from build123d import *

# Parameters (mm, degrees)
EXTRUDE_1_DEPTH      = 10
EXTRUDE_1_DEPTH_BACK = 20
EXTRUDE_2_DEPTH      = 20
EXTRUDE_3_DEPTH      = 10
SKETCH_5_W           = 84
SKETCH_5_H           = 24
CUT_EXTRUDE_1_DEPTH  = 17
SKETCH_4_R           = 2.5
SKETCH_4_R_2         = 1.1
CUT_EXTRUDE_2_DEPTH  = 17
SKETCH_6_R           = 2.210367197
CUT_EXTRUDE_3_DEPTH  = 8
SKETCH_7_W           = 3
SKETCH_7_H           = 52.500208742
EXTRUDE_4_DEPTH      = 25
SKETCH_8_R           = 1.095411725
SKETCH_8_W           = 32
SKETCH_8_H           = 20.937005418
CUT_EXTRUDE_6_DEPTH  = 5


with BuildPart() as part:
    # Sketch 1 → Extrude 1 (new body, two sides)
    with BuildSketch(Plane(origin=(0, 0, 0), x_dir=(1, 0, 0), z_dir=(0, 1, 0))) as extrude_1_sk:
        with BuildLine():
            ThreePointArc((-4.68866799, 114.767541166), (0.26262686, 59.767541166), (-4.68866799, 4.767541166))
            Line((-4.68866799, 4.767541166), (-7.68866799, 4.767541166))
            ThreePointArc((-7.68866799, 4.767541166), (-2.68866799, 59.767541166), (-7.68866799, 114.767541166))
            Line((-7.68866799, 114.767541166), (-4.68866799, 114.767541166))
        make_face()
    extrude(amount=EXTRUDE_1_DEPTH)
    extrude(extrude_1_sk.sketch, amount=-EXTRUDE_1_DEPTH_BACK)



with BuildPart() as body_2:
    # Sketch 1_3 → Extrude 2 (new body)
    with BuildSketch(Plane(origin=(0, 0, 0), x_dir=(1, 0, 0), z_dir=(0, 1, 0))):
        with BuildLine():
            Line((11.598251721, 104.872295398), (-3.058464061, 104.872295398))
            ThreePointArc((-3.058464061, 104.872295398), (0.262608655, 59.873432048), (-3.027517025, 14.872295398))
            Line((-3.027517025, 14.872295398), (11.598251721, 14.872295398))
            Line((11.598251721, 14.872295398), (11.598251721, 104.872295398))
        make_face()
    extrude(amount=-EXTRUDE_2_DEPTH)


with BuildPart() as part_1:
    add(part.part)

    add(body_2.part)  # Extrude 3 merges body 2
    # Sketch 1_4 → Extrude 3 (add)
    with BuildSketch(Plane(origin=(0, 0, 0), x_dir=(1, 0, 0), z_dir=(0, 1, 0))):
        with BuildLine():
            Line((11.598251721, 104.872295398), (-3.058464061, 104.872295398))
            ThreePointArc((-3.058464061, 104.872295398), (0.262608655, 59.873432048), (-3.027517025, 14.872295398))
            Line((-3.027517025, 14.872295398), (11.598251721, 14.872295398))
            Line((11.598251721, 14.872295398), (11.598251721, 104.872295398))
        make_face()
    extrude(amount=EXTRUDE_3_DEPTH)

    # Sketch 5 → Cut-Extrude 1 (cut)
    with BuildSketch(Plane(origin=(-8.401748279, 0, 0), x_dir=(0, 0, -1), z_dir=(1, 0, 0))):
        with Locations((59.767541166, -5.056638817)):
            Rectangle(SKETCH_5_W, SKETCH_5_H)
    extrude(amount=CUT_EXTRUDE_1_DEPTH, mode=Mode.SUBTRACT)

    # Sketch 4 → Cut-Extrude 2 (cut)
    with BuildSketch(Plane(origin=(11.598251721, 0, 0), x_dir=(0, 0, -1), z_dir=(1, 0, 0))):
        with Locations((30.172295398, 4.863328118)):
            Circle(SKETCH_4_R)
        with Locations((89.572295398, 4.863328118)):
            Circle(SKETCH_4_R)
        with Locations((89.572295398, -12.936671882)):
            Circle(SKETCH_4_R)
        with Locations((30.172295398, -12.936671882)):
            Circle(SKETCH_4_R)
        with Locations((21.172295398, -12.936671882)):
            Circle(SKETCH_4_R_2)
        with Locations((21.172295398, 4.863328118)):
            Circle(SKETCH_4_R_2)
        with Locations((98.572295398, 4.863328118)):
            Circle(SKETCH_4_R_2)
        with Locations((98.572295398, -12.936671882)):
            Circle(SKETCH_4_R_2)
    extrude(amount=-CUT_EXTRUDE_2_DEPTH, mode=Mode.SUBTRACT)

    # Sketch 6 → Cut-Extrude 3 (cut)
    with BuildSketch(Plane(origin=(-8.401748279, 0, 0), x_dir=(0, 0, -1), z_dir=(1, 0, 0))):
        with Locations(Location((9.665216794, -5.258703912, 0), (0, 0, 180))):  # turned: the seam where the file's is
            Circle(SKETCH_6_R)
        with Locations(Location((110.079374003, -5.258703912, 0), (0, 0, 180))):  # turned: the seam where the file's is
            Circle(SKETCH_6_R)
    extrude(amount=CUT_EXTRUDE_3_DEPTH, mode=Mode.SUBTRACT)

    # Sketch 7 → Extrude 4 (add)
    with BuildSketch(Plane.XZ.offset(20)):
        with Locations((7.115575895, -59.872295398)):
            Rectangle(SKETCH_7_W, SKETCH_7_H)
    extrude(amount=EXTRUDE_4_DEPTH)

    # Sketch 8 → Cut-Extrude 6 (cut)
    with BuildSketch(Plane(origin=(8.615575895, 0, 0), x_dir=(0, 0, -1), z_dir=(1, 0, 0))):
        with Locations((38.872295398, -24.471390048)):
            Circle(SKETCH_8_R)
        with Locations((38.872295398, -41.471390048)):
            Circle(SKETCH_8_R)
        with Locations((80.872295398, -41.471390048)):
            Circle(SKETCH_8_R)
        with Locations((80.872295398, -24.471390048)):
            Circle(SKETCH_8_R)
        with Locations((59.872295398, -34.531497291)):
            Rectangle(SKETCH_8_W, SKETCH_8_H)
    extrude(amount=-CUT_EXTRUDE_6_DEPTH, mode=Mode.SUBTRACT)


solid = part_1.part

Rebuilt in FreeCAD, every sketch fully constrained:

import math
import FreeCAD as App
import Part
import Sketcher
from FreeCAD import Vector


def add_polygon(sketch, points):
    """Adds a closed chain of lines whose ends are joined by coincident constraints."""
    first, n = sketch.GeometryCount, len(points)
    for a, b in zip(points, points[1:] + points[:1]):
        sketch.addGeometry(Part.LineSegment(App.Vector(*a, 0), App.Vector(*b, 0)), False)
    for i in range(n):
        sketch.addConstraint(Sketcher.Constraint("Coincident", first + i, 2, first + (i + 1) % n, 1))

doc = App.newDocument("Part")
params = doc.addObject("Spreadsheet::Sheet", "Params")
for row, (alias, value) in enumerate([
    ("sketch1_radius", "305 mm"),
    ("sketch1_width", "3 mm"),
    ("pad1_length", "10 mm"),
    ("pad1_length2", "20 mm"),
    ("sketch2_height", "90 mm"),
    ("pad2_length", "20 mm"),
    ("sketch3_height", "90 mm"),
    ("pad3_length", "10 mm"),
    ("sketch4_width", "24 mm"),
    ("sketch4_height", "84 mm"),
    ("pocket1_length", "17 mm"),
    ("sketch5_diameter", "5 mm"),
    ("sketch5_diameter2", "2.2 mm"),
    ("pocket2_length", "17 mm"),
    ("pocket3_length", "8 mm"),
    ("sketch7_width", "3 mm"),
    ("pad4_length", "25 mm"),
    ("sketch8_height", "32 mm"),
    ("pocket4_length", "5 mm"),
], start=1):
    params.set(f"A{row}", alias)
    params.set(f"B{row}", "=" + value)
    params.setAlias(f"B{row}", alias)

body = doc.addObject("PartDesign::Body", "Body")

# Sketch on XZ plane
sketch1 = body.newObject("Sketcher::SketchObject", "Sketch")
sketch1.AttachmentSupport = (doc.getObject("XZ_Plane"), [""])
sketch1.MapMode = "FlatFace"
sketch1.addGeometry([
    Part.ArcOfCircle(Part.Circle(Vector(-307.7, -59.8, 0), Vector(0, 0, 1), 308), math.radians(-10), math.radians(10)),
    Part.LineSegment(Vector(-4.7, -114.8, 0), Vector(-7.7, -114.8, 0)),
    Part.ArcOfCircle(Part.Circle(Vector(-307.7, -59.8, 0), Vector(0, 0, 1), 305), math.radians(-10), math.radians(10)),
    Part.LineSegment(Vector(-7.7, -4.8, 0), Vector(-4.7, -4.8, 0)),
], False)
sketch1.addConstraint([
    Sketcher.Constraint("Coincident", 0, 1, 1, 1),
    Sketcher.Constraint("Coincident", 1, 2, 2, 1),
    Sketcher.Constraint("Coincident", 2, 2, 3, 1),
    Sketcher.Constraint("Coincident", 3, 2, 0, 2),
    Sketcher.Constraint("Horizontal", 1),
    Sketcher.Constraint("Horizontal", 3),
    Sketcher.Constraint("Coincident", 2, 3, 0, 3),
    Sketcher.Constraint("Vertical", 1, 2, 2, 2),
    Sketcher.Constraint("Radius", 2, 305.0),
    Sketcher.Constraint("DistanceX", 1, 2, 1, 1, 3.0),
    Sketcher.Constraint("DistanceX", 2, 3, 1, 2, 300.0),
    Sketcher.Constraint("DistanceX", 0, 3, -1, 1, 307.688668),
    Sketcher.Constraint("DistanceY", 0, 3, -1, 1, 59.767541),
])
sketch1.setExpression("Constraints[8]", "Params.sketch1_radius")
sketch1.setExpression("Constraints[9]", "Params.sketch1_width")
pad1 = body.newObject("PartDesign::Pad", "Pad")
pad1.Profile = sketch1
pad1.Type = "TwoLengths"
pad1.setExpression("Length", "Params.pad1_length")
pad1.setExpression("Length2", "Params.pad1_length2")
pad1.Reversed = True
body2 = doc.addObject("PartDesign::Body", "Body001")

# Sketch on XZ plane
sketch2 = body2.newObject("Sketcher::SketchObject", "Sketch001")
sketch2.AttachmentSupport = (doc.getObject("XZ_Plane001"), [""])
sketch2.MapMode = "FlatFace"
sketch2.addGeometry([
    Part.LineSegment(Vector(12, -105, 0), Vector(-3, -105, 0)),
    Part.ArcOfCircle(Part.Circle(Vector(-308, -60, 0), Vector(0, 0, 1), 308), math.radians(-8.42), math.radians(8.38)),
    Part.LineSegment(Vector(-3, -15, 0), Vector(12, -15, 0)),
    Part.LineSegment(Vector(12, -15, 0), Vector(12, -105, 0)),
], False)
sketch2.addConstraint([
    Sketcher.Constraint("Coincident", 0, 2, 1, 1),
    Sketcher.Constraint("Coincident", 1, 2, 2, 1),
    Sketcher.Constraint("Coincident", 2, 2, 3, 1),
    Sketcher.Constraint("Coincident", 3, 2, 0, 1),
    Sketcher.Constraint("Horizontal", 0),
    Sketcher.Constraint("Horizontal", 2),
    Sketcher.Constraint("Vertical", 3),
    Sketcher.Constraint("DistanceY", 3, 2, 3, 1, 90.0),
    Sketcher.Constraint("Radius", 1, 307.951295),
    Sketcher.Constraint("DistanceX", 2, 1, 2, 2, 14.625769),
    Sketcher.Constraint("DistanceX", 0, 2, 0, 1, 14.656716),
    Sketcher.Constraint("DistanceY", 1, 3, -1, 1, 59.767541),
    Sketcher.Constraint("DistanceX", -1, 1, 2, 2, 11.598252),
])
sketch2.setExpression("Constraints[7]", "Params.sketch2_height")
pad2 = body2.newObject("PartDesign::Pad", "Pad001")
pad2.Profile = sketch2
pad2.setExpression("Length", "Params.pad2_length")
doc.recompute()

boolean = body.newObject("PartDesign::Boolean", "Boolean")
boolean.Type = "Fuse"
boolean.addObjects([body2])

# Sketch on XZ plane
sketch3 = body.newObject("Sketcher::SketchObject", "Sketch002")
sketch3.AttachmentSupport = (doc.getObject("XZ_Plane"), [""])
sketch3.MapMode = "FlatFace"
sketch3.addGeometry([
    Part.LineSegment(Vector(12, -105, 0), Vector(-3, -105, 0)),
    Part.ArcOfCircle(Part.Circle(Vector(-308, -60, 0), Vector(0, 0, 1), 308), math.radians(-8.42), math.radians(8.38)),
    Part.LineSegment(Vector(-3, -15, 0), Vector(12, -15, 0)),
    Part.LineSegment(Vector(12, -15, 0), Vector(12, -105, 0)),
], False)
sketch3.addConstraint([
    Sketcher.Constraint("Coincident", 0, 2, 1, 1),
    Sketcher.Constraint("Coincident", 1, 2, 2, 1),
    Sketcher.Constraint("Coincident", 2, 2, 3, 1),
    Sketcher.Constraint("Coincident", 3, 2, 0, 1),
    Sketcher.Constraint("Horizontal", 0),
    Sketcher.Constraint("Horizontal", 2),
    Sketcher.Constraint("Vertical", 3),
    Sketcher.Constraint("DistanceY", 3, 2, 3, 1, 90.0),
    Sketcher.Constraint("Radius", 1, 307.951295),
    Sketcher.Constraint("DistanceX", 2, 1, 2, 2, 14.625769),
    Sketcher.Constraint("DistanceX", 0, 2, 0, 1, 14.656716),
    Sketcher.Constraint("DistanceY", 1, 3, -1, 1, 59.767541),
    Sketcher.Constraint("DistanceX", -1, 1, 2, 2, 11.598252),
])
sketch3.setExpression("Constraints[7]", "Params.sketch3_height")
pad3 = body.newObject("PartDesign::Pad", "Pad002")
pad3.Profile = sketch3
pad3.setExpression("Length", "Params.pad3_length")
pad3.Reversed = True

# Sketch on YZ plane
sketch4 = body.newObject("Sketcher::SketchObject", "Sketch003")
sketch4.AttachmentSupport = (doc.getObject("YZ_Plane"), [""])
sketch4.MapMode = "FlatFace"
sketch4.AttachmentOffset = App.Placement(Vector(0, 0, -8.401748), App.Rotation())
add_polygon(sketch4, [(7, -18), (-17, -18), (-17, -102), (7, -102)])  # lines 0-3
sketch4.addConstraint([
    Sketcher.Constraint("Horizontal", 0),
    Sketcher.Constraint("Vertical", 1),
    Sketcher.Constraint("Horizontal", 2),
    Sketcher.Constraint("Vertical", 3),
    Sketcher.Constraint("DistanceX", 0, 2, 0, 1, 24.0),
    Sketcher.Constraint("DistanceY", 1, 2, 1, 1, 84.0),
    Sketcher.Constraint("DistanceX", 0, 2, -1, 1, 17.056639),
    Sketcher.Constraint("DistanceY", 0, 2, -1, 1, 17.767541),
])
sketch4.setExpression("Constraints[8]", "Params.sketch4_width")
sketch4.setExpression("Constraints[9]", "Params.sketch4_height")
pocket1 = body.newObject("PartDesign::Pocket", "Pocket")
pocket1.Profile = sketch4
pocket1.setExpression("Length", "Params.pocket1_length")
pocket1.Reversed = True

# Sketch on YZ plane
sketch5 = body.newObject("Sketcher::SketchObject", "Sketch004")
sketch5.AttachmentSupport = (doc.getObject("YZ_Plane"), [""])
sketch5.MapMode = "FlatFace"
sketch5.AttachmentOffset = App.Placement(Vector(0, 0, 11.598252), App.Rotation())
sketch5.addGeometry([
    Part.Circle(Vector(4.9, -30.2, 0), Vector(0, 0, 1), 2.5),  # 0
    Part.Circle(Vector(4.9, -89.6, 0), Vector(0, 0, 1), 2.5),  # 1
    Part.Circle(Vector(-12.9, -89.6, 0), Vector(0, 0, 1), 2.5),  # 2
    Part.Circle(Vector(-12.9, -30.2, 0), Vector(0, 0, 1), 2.5),  # 3
    Part.Circle(Vector(-12.9, -21.2, 0), Vector(0, 0, 1), 1.1),  # 4
    Part.Circle(Vector(4.9, -21.2, 0), Vector(0, 0, 1), 1.1),  # 5
    Part.Circle(Vector(4.9, -98.6, 0), Vector(0, 0, 1), 1.1),  # 6
    Part.Circle(Vector(-12.9, -98.6, 0), Vector(0, 0, 1), 1.1),  # 7
], False)
sketch5.addConstraint([
    Sketcher.Constraint("Equal", 0, 1),
    Sketcher.Constraint("Equal", 1, 2),
    Sketcher.Constraint("Equal", 2, 3),
    Sketcher.Constraint("Equal", 4, 5),
    Sketcher.Constraint("Equal", 5, 6),
    Sketcher.Constraint("Equal", 6, 7),
    Sketcher.Constraint("Horizontal", 1, 3, 2, 3),
    Sketcher.Constraint("Horizontal", 0, 3, 3, 3),
    Sketcher.Constraint("Horizontal", 4, 3, 5, 3),
    Sketcher.Constraint("Horizontal", 6, 3, 7, 3),
    Sketcher.Constraint("Vertical", 0, 3, 1, 3),
    Sketcher.Constraint("Vertical", 2, 3, 3, 3),
    Sketcher.Constraint("Vertical", 3, 3, 4, 3),
    Sketcher.Constraint("Vertical", 1, 3, 5, 3),
    Sketcher.Constraint("Vertical", 5, 3, 6, 3),
    Sketcher.Constraint("Vertical", 4, 3, 7, 3),
    Sketcher.Constraint("Diameter", 0, 5.0),
    Sketcher.Constraint("Diameter", 4, 2.2),
    Sketcher.Constraint("DistanceY", 3, 3, 4, 3, 9.0),
    Sketcher.Constraint("DistanceY", 6, 3, 1, 3, 9.0),
    Sketcher.Constraint("DistanceY", 1, 3, 0, 3, 59.4),
    Sketcher.Constraint("DistanceX", 2, 3, 1, 3, 17.8),
    Sketcher.Constraint("DistanceX", -1, 1, 0, 3, 4.863328),
    Sketcher.Constraint("DistanceY", 0, 3, -1, 1, 30.172295),
])
sketch5.setExpression("Constraints[16]", "Params.sketch5_diameter")
sketch5.setExpression("Constraints[17]", "Params.sketch5_diameter2")
pocket2 = body.newObject("PartDesign::Pocket", "Pocket001")
pocket2.Profile = sketch5
pocket2.setExpression("Length", "Params.pocket2_length")

# Sketch on YZ plane
sketch6 = body.newObject("Sketcher::SketchObject", "Sketch005")
sketch6.AttachmentSupport = (doc.getObject("YZ_Plane"), [""])
sketch6.MapMode = "FlatFace"
sketch6.AttachmentOffset = App.Placement(Vector(0, 0, -8.401748), App.Rotation())
sketch6.addGeometry([
    Part.Circle(Vector(-5.3, -9.7, 0), Vector(0, 0, 1), 2.2),
    Part.Circle(Vector(-5.3, -110.1, 0), Vector(0, 0, 1), 2.2),
], False)
sketch6.addConstraint([
    Sketcher.Constraint("Equal", 0, 1),
    Sketcher.Constraint("Vertical", 0, 3, 1, 3),
    Sketcher.Constraint("Diameter", 0, 4.420734),
    Sketcher.Constraint("DistanceX", 0, 3, -1, 1, 5.258704),
    Sketcher.Constraint("DistanceY", 0, 3, -1, 1, 9.665217),
    Sketcher.Constraint("DistanceY", 1, 3, -1, 1, 110.079374),
])
pocket3 = body.newObject("PartDesign::Pocket", "Pocket002")
pocket3.Profile = sketch6
pocket3.setExpression("Length", "Params.pocket3_length")
pocket3.Reversed = True

# Sketch on XZ plane
sketch7 = body.newObject("Sketcher::SketchObject", "Sketch006")
sketch7.AttachmentSupport = (doc.getObject("XZ_Plane"), [""])
sketch7.MapMode = "FlatFace"
sketch7.AttachmentOffset = App.Placement(Vector(0, 0, 20), App.Rotation())
add_polygon(sketch7, [(5.6, -33.6), (5.6, -86.1), (8.6, -86.1), (8.6, -33.6)])  # lines 0-3
sketch7.addConstraint([
    Sketcher.Constraint("Vertical", 0),
    Sketcher.Constraint("Horizontal", 1),
    Sketcher.Constraint("Vertical", 2),
    Sketcher.Constraint("Horizontal", 3),
    Sketcher.Constraint("DistanceX", 1, 1, 1, 2, 3.0),
    Sketcher.Constraint("DistanceY", 0, 2, 0, 1, 52.500209),
    Sketcher.Constraint("DistanceY", 0, 2, -1, 1, 86.1224),
    Sketcher.Constraint("DistanceX", -1, 1, 0, 2, 5.615576),
])
sketch7.setExpression("Constraints[8]", "Params.sketch7_width")
pad4 = body.newObject("PartDesign::Pad", "Pad003")
pad4.Profile = sketch7
pad4.setExpression("Length", "Params.pad4_length")

# Sketch on YZ plane
sketch8 = body.newObject("Sketcher::SketchObject", "Sketch007")
sketch8.AttachmentSupport = (doc.getObject("YZ_Plane"), [""])
sketch8.MapMode = "FlatFace"
sketch8.AttachmentOffset = App.Placement(Vector(0, 0, 8.615576), App.Rotation())
sketch8.addGeometry(Part.Circle(Vector(-24.5, -38.9, 0), Vector(0, 0, 1), 1.1), False)  # 0
sketch8.addGeometry(Part.Circle(Vector(-41.5, -38.9, 0), Vector(0, 0, 1), 1.1), False)  # 1
sketch8.addGeometry(Part.Circle(Vector(-41.5, -80.9, 0), Vector(0, 0, 1), 1.1), False)  # 2
sketch8.addGeometry(Part.Circle(Vector(-24.5, -80.9, 0), Vector(0, 0, 1), 1.1), False)  # 3
add_polygon(sketch8, [(-24.1, -43.9), (-45, -43.9), (-45, -75.9), (-24.1, -75.9)])  # lines 4-7
sketch8.addConstraint([
    Sketcher.Constraint("Horizontal", 4),
    Sketcher.Constraint("Vertical", 5),
    Sketcher.Constraint("Horizontal", 6),
    Sketcher.Constraint("Vertical", 7),
    Sketcher.Constraint("Equal", 0, 1),
    Sketcher.Constraint("Equal", 1, 2),
    Sketcher.Constraint("Equal", 2, 3),
    Sketcher.Constraint("Horizontal", 0, 3, 1, 3),
    Sketcher.Constraint("Horizontal", 2, 3, 3, 3),
    Sketcher.Constraint("Vertical", 1, 3, 2, 3),
    Sketcher.Constraint("Vertical", 0, 3, 3, 3),
    Sketcher.Constraint("DistanceY", 5, 2, 5, 1, 32.0),
    Sketcher.Constraint("DistanceX", 4, 2, -1, 1, 45.0),
    Sketcher.Constraint("DistanceX", 1, 3, 0, 3, 17.0),
    Sketcher.Constraint("DistanceY", 2, 3, 1, 3, 42.0),
    Sketcher.Constraint("DistanceY", 4, 2, 1, 3, 5.0),
    Sketcher.Constraint("Diameter", 0, 2.190823),
    Sketcher.Constraint("DistanceX", 4, 2, 4, 1, 20.937005),
    Sketcher.Constraint("DistanceX", 0, 3, -1, 1, 24.47139),
    Sketcher.Constraint("DistanceY", 0, 3, -1, 1, 38.872295),
])
sketch8.setExpression("Constraints[15]", "Params.sketch8_height")
pocket4 = body.newObject("PartDesign::Pocket", "Pocket003")
pocket4.Profile = sketch8
pocket4.setExpression("Length", "Params.pocket4_length")

doc.recompute()
